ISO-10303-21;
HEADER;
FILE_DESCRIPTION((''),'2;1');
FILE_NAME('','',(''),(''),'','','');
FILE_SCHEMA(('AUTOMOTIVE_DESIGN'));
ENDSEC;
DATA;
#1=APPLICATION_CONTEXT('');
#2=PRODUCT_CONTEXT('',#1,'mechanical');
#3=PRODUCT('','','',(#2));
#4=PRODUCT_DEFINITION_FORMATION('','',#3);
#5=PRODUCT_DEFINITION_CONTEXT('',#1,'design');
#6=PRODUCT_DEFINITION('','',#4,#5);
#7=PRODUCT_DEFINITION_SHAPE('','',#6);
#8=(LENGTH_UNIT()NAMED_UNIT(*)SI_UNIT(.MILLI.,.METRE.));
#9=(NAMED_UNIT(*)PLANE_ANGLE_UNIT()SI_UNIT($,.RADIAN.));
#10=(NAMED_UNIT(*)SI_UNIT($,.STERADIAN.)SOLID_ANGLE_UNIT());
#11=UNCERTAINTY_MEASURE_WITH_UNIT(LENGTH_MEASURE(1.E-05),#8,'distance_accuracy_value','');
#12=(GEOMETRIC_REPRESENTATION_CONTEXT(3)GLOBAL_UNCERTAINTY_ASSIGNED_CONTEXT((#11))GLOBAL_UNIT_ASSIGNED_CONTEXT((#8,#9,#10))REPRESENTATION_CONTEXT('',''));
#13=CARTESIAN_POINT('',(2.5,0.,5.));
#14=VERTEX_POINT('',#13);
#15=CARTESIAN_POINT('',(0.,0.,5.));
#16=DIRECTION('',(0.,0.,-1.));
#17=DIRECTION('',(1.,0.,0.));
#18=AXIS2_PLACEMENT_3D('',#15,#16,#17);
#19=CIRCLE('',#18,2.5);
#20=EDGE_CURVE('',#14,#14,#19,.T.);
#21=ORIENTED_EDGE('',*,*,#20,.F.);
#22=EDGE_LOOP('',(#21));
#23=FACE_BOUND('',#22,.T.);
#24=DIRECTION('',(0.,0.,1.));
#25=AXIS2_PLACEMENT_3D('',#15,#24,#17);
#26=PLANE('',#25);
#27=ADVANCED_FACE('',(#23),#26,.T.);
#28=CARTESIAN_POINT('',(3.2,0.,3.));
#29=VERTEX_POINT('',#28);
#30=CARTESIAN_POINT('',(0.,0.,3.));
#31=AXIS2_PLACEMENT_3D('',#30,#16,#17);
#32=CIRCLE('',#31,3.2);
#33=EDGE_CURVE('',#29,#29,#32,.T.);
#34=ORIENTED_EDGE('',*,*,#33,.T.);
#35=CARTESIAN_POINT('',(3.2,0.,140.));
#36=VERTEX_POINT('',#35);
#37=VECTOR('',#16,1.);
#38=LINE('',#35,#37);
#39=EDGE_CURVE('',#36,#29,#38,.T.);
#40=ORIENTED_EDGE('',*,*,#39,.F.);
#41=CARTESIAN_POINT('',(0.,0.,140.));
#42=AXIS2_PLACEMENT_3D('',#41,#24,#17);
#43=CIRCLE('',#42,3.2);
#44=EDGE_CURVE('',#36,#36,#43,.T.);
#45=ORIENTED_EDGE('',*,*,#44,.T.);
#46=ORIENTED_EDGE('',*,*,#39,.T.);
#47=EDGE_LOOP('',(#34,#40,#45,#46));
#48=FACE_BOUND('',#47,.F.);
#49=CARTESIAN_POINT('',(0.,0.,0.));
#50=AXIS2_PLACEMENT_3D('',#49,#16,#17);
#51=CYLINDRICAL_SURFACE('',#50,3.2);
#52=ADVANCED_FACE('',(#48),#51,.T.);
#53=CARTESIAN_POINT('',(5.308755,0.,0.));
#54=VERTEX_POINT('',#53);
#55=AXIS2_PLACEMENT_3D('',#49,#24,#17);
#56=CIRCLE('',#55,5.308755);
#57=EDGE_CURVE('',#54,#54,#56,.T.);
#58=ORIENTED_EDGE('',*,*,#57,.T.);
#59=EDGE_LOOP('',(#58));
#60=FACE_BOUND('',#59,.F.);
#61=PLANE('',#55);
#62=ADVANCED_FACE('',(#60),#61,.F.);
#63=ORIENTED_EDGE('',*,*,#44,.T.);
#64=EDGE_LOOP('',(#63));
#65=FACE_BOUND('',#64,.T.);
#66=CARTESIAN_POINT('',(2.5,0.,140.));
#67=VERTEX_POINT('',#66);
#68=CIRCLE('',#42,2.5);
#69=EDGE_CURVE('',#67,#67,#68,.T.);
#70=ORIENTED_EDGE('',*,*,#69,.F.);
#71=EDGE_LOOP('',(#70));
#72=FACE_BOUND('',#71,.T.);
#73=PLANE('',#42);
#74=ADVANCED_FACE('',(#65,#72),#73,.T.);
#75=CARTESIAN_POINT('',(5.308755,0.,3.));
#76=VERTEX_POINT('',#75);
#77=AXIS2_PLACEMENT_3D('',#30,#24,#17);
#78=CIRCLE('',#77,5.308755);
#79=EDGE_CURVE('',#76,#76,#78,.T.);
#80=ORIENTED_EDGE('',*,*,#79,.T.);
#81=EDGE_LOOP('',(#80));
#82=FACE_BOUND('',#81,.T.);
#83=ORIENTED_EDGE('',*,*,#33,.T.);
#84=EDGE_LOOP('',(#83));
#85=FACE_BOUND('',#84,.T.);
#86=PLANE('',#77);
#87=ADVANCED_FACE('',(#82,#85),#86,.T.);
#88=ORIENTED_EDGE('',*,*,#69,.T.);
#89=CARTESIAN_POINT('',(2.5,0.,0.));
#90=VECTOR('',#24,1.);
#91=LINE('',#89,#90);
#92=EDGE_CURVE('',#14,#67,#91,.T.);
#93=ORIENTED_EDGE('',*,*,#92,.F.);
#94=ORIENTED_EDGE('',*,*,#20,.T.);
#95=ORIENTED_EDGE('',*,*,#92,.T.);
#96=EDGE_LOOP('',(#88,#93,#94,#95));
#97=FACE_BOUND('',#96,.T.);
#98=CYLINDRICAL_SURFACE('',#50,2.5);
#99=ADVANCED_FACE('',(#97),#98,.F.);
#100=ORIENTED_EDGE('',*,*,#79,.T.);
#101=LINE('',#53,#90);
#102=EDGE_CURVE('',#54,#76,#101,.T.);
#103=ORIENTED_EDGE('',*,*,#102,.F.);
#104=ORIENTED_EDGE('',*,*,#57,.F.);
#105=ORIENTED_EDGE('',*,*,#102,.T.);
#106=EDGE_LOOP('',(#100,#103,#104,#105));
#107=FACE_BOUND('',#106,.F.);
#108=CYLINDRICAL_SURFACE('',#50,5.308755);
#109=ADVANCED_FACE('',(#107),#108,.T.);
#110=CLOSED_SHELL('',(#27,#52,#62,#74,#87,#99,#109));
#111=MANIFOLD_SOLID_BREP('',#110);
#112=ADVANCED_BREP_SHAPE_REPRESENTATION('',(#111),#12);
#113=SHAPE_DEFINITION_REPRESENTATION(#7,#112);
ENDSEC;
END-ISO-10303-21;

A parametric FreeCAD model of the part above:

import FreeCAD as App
import Part
import Sketcher
from FreeCAD import Vector

doc = App.newDocument("Part")
body = doc.addObject("PartDesign::Body", "Body")

# Sketch on XY plane
sketch1 = body.newObject("Sketcher::SketchObject", "Sketch")
sketch1.AttachmentSupport = (doc.getObject("XY_Plane"), [""])
sketch1.MapMode = "FlatFace"
sketch1.addGeometry(Part.Circle(Vector(0, 0, 0), Vector(0, 0, 1), 5), False)
sketch1.addConstraint([
    Sketcher.Constraint("Coincident", 0, 3, -1, 1),
    Sketcher.Constraint("Diameter", 0, 10.61751),
])
pad1 = body.newObject("PartDesign::Pad", "Pad")
pad1.Profile = sketch1
pad1.Length = 3

# Sketch on XY plane
sketch2 = body.newObject("Sketcher::SketchObject", "Sketch001")
sketch2.AttachmentSupport = (doc.getObject("XY_Plane"), [""])
sketch2.MapMode = "FlatFace"
sketch2.addGeometry(Part.Circle(Vector(0, 0, 0), Vector(0, 0, 1), 3.2), False)
sketch2.addConstraint([
    Sketcher.Constraint("Coincident", 0, 3, -1, 1),
    Sketcher.Constraint("Diameter", 0, 6.4),
])
pad2 = body.newObject("PartDesign::Pad", "Pad001")
pad2.Profile = sketch2
pad2.Length = 5

# Sketch on XY plane
sketch3 = body.newObject("Sketcher::SketchObject", "Sketch002")
sketch3.AttachmentSupport = (doc.getObject("XY_Plane"), [""])
sketch3.MapMode = "FlatFace"
sketch3.addGeometry([
    Part.Circle(Vector(0, 0, 0), Vector(0, 0, 1), 3.2),
    Part.Circle(Vector(0, 0, 0), Vector(0, 0, 1), 2.5),
], False)
sketch3.addConstraint([
    Sketcher.Constraint("Coincident", 0, 3, -1, 1),
    Sketcher.Constraint("Coincident", 1, 3, -1, 1),
    Sketcher.Constraint("Diameter", 1, 5.0),
    Sketcher.Constraint("Diameter", 0, 6.4),
])
pad3 = body.newObject("PartDesign::Pad", "Pad002")
pad3.Profile = sketch3
pad3.Length = 140

doc.recompute()
